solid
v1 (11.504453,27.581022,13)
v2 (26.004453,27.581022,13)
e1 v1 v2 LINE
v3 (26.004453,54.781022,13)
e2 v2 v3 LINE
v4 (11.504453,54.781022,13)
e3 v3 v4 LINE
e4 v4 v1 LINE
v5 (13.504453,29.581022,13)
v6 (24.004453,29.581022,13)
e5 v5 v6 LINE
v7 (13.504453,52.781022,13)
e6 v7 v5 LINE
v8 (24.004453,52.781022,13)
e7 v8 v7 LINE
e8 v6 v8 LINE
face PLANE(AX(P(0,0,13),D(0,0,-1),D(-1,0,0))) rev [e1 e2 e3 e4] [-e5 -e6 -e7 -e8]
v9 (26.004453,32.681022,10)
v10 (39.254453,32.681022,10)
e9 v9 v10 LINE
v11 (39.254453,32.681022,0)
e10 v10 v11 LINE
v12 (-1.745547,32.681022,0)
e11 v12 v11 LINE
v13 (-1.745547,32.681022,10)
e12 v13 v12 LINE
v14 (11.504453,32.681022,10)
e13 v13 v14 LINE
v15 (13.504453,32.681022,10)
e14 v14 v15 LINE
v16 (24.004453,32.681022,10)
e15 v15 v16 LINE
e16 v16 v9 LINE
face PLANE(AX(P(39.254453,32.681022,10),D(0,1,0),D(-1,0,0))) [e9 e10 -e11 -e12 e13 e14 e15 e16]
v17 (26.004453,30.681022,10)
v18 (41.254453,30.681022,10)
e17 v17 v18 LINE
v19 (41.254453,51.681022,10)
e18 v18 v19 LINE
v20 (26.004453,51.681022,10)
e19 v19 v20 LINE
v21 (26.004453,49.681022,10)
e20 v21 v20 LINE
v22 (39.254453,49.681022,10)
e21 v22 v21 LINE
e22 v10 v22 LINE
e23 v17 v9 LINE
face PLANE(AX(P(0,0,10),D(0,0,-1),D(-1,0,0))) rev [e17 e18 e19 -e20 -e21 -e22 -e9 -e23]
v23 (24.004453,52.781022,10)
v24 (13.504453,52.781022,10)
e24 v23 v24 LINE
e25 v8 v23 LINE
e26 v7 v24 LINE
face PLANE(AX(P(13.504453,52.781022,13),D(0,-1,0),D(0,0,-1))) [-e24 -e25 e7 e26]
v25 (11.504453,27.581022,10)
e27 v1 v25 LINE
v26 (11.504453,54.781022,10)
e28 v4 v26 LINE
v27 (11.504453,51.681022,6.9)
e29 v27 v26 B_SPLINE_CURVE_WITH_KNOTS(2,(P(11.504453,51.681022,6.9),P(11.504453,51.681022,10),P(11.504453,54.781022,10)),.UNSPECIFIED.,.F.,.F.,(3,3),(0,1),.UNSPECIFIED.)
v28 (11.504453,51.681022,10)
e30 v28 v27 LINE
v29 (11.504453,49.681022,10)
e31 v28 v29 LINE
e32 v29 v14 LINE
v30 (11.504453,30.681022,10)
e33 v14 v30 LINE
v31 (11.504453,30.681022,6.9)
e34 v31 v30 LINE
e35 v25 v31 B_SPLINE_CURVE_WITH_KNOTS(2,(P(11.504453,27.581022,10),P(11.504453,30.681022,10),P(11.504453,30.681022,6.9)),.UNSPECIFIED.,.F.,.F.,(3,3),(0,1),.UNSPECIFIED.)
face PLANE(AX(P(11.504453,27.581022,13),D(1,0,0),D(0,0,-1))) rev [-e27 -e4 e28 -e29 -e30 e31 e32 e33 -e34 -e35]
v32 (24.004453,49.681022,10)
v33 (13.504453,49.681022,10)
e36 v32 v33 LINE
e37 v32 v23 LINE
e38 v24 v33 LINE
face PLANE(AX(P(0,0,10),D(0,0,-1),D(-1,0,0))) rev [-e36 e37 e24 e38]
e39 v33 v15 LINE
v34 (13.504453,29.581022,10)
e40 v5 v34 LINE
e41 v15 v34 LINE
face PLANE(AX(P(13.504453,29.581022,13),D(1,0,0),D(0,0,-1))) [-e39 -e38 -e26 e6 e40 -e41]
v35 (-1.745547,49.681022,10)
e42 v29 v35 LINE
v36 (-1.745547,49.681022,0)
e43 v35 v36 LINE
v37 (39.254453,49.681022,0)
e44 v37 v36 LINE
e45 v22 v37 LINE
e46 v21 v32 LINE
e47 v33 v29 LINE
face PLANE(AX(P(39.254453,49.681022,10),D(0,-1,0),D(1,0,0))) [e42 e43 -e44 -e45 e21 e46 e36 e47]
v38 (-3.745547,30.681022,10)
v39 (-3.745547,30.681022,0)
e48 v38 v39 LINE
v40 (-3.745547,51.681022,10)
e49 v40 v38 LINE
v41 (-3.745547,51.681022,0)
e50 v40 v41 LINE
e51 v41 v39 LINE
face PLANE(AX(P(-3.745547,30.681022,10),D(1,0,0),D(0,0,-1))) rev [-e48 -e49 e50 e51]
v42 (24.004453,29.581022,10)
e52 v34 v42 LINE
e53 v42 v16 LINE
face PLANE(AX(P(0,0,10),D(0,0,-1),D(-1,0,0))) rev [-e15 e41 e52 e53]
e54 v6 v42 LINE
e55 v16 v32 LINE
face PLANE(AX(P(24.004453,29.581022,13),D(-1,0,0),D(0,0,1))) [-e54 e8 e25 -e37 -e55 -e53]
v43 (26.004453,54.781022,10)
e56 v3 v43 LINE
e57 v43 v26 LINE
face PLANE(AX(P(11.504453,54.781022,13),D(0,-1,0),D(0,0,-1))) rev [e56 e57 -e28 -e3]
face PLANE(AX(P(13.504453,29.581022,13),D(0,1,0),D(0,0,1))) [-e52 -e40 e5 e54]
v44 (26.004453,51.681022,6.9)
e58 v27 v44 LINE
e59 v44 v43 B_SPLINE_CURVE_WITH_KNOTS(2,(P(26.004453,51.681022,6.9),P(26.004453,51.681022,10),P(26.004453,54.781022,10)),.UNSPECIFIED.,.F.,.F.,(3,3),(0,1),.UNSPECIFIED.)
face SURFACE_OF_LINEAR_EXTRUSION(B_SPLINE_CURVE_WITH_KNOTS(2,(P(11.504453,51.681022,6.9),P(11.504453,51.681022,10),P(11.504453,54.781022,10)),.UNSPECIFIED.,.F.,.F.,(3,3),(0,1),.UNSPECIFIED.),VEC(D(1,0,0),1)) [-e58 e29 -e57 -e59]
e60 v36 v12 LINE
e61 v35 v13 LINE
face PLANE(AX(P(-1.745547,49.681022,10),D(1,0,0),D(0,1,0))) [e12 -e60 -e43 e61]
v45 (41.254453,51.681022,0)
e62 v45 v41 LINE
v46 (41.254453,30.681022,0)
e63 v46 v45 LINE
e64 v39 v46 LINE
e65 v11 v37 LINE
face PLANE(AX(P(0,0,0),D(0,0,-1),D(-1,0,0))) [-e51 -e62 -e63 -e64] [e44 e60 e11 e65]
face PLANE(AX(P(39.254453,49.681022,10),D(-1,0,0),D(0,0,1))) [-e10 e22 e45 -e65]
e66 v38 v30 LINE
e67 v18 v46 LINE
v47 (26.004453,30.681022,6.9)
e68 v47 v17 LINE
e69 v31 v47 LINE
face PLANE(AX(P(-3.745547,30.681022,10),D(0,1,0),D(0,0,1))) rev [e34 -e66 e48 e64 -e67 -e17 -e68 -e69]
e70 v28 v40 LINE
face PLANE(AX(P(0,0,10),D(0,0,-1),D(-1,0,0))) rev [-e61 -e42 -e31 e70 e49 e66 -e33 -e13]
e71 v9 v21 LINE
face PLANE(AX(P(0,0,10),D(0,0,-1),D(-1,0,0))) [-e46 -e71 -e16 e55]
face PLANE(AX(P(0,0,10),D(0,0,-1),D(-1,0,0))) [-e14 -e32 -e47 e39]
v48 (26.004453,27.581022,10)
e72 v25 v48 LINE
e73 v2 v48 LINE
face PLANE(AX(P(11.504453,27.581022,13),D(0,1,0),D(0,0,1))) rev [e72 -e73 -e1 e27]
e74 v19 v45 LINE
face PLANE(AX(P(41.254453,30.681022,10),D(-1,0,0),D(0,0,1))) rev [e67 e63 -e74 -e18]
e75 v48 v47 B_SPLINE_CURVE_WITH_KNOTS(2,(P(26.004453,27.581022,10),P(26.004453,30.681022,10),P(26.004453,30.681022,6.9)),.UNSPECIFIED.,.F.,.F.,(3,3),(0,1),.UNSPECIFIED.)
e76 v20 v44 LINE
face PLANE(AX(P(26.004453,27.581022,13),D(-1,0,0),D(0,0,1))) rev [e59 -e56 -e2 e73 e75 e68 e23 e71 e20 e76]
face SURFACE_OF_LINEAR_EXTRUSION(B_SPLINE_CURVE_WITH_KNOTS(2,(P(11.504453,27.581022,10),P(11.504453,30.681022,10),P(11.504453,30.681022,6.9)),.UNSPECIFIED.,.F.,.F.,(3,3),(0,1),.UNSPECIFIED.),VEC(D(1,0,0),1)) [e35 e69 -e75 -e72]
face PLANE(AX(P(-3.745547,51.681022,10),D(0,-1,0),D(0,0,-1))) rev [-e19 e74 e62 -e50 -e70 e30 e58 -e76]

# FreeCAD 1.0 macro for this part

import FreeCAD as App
import Part
import Sketcher

V = App.Vector


def add_polygon(sketch, points):
    """Adds a closed chain of lines whose ends are joined by coincident constraints."""
    first, n = sketch.GeometryCount, len(points)
    for a, b in zip(points, points[1:] + points[:1]):
        sketch.addGeometry(Part.LineSegment(App.Vector(*a, 0), App.Vector(*b, 0)), False)
    for i in range(n):
        sketch.addConstraint(Sketcher.Constraint("Coincident", first + i, 2, first + (i + 1) % n, 1))

doc = App.newDocument("Part")
params = doc.addObject("Spreadsheet::Sheet", "Params")
for row, (alias, value) in enumerate([
    ("sketch1_width", "45 mm"),
    ("sketch1_width2", "41 mm"),
    ("sketch1_height", "21 mm"),
    ("sketch1_height2", "17 mm"),
    ("pad1_length", "10 mm"),
    ("sketch2_width", "14.5 mm"),
    ("sketch2_width2", "10.5 mm"),
    ("sketch2_height", "27.2 mm"),
    ("sketch2_height2", "23.2 mm"),
    ("pad2_length", "3 mm"),
    ("pad3_length", "14.5 mm"),
], start=1):
    params.set(f"A{row}", alias)
    params.set(f"B{row}", "=" + value)
    params.setAlias(f"B{row}", alias)

body = doc.addObject("PartDesign::Body", "Body")

sketch1 = body.newObject("Sketcher::SketchObject", "Sketch")
sketch1.AttachmentSupport = (doc.getObject("XY_Plane"), [""])
sketch1.MapMode = "FlatFace"
add_polygon(sketch1, [(-3.745547, 51.681022), (-3.745547, 30.681022), (41.254453, 30.681022), (41.254453, 51.681022)])
add_polygon(sketch1, [(39.254453, 32.681022), (-1.745547, 32.681022), (-1.745547, 49.681022), (39.254453, 49.681022)])
sketch1.addConstraint(Sketcher.Constraint("Vertical", 0))
sketch1.addConstraint(Sketcher.Constraint("Horizontal", 1))
sketch1.addConstraint(Sketcher.Constraint("Vertical", 2))
sketch1.addConstraint(Sketcher.Constraint("Horizontal", 3))
sketch1.addConstraint(Sketcher.Constraint("Horizontal", 4))
sketch1.addConstraint(Sketcher.Constraint("Vertical", 5))
sketch1.addConstraint(Sketcher.Constraint("Horizontal", 6))
sketch1.addConstraint(Sketcher.Constraint("Vertical", 7))
sketch1.addConstraint(Sketcher.Constraint("DistanceX", 1, 1, 1, 2, 45.0))
sketch1.addConstraint(Sketcher.Constraint("DistanceX", 4, 2, 4, 1, 41.0))
sketch1.addConstraint(Sketcher.Constraint("DistanceY", 0, 2, 0, 1, 21.0))
sketch1.addConstraint(Sketcher.Constraint("DistanceY", 5, 1, 5, 2, 17.0))
sketch1.addConstraint(Sketcher.Constraint("DistanceX", 0, 2, 4, 2, 2.0))
sketch1.addConstraint(Sketcher.Constraint("DistanceY", 0, 2, 4, 2, 2.0))
sketch1.addConstraint(Sketcher.Constraint("DistanceX", 0, 2, -1, 1, 3.745547))
sketch1.addConstraint(Sketcher.Constraint("DistanceY", -1, 1, 0, 2, 30.681022))
sketch1.setExpression("Constraints[16]", "Params.sketch1_width")
sketch1.setExpression("Constraints[17]", "Params.sketch1_width2")
sketch1.setExpression("Constraints[18]", "Params.sketch1_height")
sketch1.setExpression("Constraints[19]", "Params.sketch1_height2")
pad1 = body.newObject("PartDesign::Pad", "Pad")
pad1.Profile = sketch1
pad1.setExpression("Length", "Params.pad1_length")

sketch2 = body.newObject("Sketcher::SketchObject", "Sketch001")
sketch2.AttachmentSupport = (doc.getObject("XY_Plane"), [""])
sketch2.MapMode = "FlatFace"
sketch2.AttachmentOffset = App.Placement(V(0, 0, 10), App.Rotation())
add_polygon(sketch2, [(11.504453, 54.781022), (11.504453, 27.581022), (26.004453, 27.581022), (26.004453, 54.781022)])
add_polygon(sketch2, [(24.004453, 29.581022), (13.504453, 29.581022), (13.504453, 52.781022), (24.004453, 52.781022)])
sketch2.addConstraint(Sketcher.Constraint("Vertical", 0))
sketch2.addConstraint(Sketcher.Constraint("Horizontal", 1))
sketch2.addConstraint(Sketcher.Constraint("Vertical", 2))
sketch2.addConstraint(Sketcher.Constraint("Horizontal", 3))
sketch2.addConstraint(Sketcher.Constraint("Horizontal", 4))
sketch2.addConstraint(Sketcher.Constraint("Vertical", 5))
sketch2.addConstraint(Sketcher.Constraint("Horizontal", 6))
sketch2.addConstraint(Sketcher.Constraint("Vertical", 7))
sketch2.addConstraint(Sketcher.Constraint("DistanceX", 1, 1, 1, 2, 14.5))
sketch2.addConstraint(Sketcher.Constraint("DistanceX", 4, 2, 4, 1, 10.5))
sketch2.addConstraint(Sketcher.Constraint("DistanceY", 0, 2, 0, 1, 27.2))
sketch2.addConstraint(Sketcher.Constraint("DistanceY", 5, 1, 5, 2, 23.2))
sketch2.addConstraint(Sketcher.Constraint("DistanceX", 0, 2, 4, 2, 2.0))
sketch2.addConstraint(Sketcher.Constraint("DistanceY", 0, 2, 4, 2, 2.0))
sketch2.addConstraint(Sketcher.Constraint("DistanceX", -1, 1, 0, 2, 11.504453))
sketch2.addConstraint(Sketcher.Constraint("DistanceY", -1, 1, 0, 2, 27.581022))
sketch2.setExpression("Constraints[16]", "Params.sketch2_width")
sketch2.setExpression("Constraints[17]", "Params.sketch2_width2")
sketch2.setExpression("Constraints[18]", "Params.sketch2_height")
sketch2.setExpression("Constraints[19]", "Params.sketch2_height2")
pad2 = body.newObject("PartDesign::Pad", "Pad001")
pad2.Profile = sketch2
pad2.setExpression("Length", "Params.pad2_length")

sketch3 = body.newObject("Sketcher::SketchObject", "Sketch002")
sketch3.AttachmentSupport = (doc.getObject("YZ_Plane"), [""])
sketch3.MapMode = "FlatFace"
sketch3.AttachmentOffset = App.Placement(V(0, 0, 11.504453), App.Rotation())
sketch3.addGeometry(Part.LineSegment(V(54.781022, 10, 0), V(51.681022, 10, 0)), False)
sketch3.addGeometry(Part.LineSegment(V(51.681022, 10, 0), V(51.681022, 6.9, 0)), False)
sketch3.addGeometry(Part.BSplineCurve([V(51.681022, 6.9, 0), V(51.681022, 10, 0), V(54.781022, 10, 0)], [3, 3], [0, 1], False, 2, [1, 1, 1], False), False)
sketch3.addGeometry(Part.LineSegment(V(30.681022, 10, 0), V(27.581022, 10, 0)), False)
sketch3.addGeometry(Part.BSplineCurve([V(27.581022, 10, 0), V(30.681022, 10, 0), V(30.681022, 6.9, 0)], [3, 3], [0, 1], False, 2, [1, 1, 1], False), False)
sketch3.addGeometry(Part.LineSegment(V(30.681022, 6.9, 0), V(30.681022, 10, 0)), False)
sketch3.addConstraint(Sketcher.Constraint("Block", 2))
sketch3.addConstraint(Sketcher.Constraint("Block", 4))
sketch3.addConstraint(Sketcher.Constraint("Coincident", 0, 2, 1, 1))
sketch3.addConstraint(Sketcher.Constraint("Coincident", 1, 2, 2, 1))
sketch3.addConstraint(Sketcher.Constraint("Coincident", 2, 2, 0, 1))
sketch3.addConstraint(Sketcher.Constraint("Coincident", 3, 2, 4, 1))
sketch3.addConstraint(Sketcher.Constraint("Coincident", 4, 2, 5, 1))
sketch3.addConstraint(Sketcher.Constraint("Coincident", 5, 2, 3, 1))
sketch3.addConstraint(Sketcher.Constraint("Horizontal", 0))
sketch3.addConstraint(Sketcher.Constraint("Vertical", 1))
sketch3.addConstraint(Sketcher.Constraint("Horizontal", 3))
sketch3.addConstraint(Sketcher.Constraint("Vertical", 5))
pad3 = body.newObject("PartDesign::Pad", "Pad002")
pad3.Profile = sketch3
pad3.setExpression("Length", "Params.pad3_length")

doc.recompute()
